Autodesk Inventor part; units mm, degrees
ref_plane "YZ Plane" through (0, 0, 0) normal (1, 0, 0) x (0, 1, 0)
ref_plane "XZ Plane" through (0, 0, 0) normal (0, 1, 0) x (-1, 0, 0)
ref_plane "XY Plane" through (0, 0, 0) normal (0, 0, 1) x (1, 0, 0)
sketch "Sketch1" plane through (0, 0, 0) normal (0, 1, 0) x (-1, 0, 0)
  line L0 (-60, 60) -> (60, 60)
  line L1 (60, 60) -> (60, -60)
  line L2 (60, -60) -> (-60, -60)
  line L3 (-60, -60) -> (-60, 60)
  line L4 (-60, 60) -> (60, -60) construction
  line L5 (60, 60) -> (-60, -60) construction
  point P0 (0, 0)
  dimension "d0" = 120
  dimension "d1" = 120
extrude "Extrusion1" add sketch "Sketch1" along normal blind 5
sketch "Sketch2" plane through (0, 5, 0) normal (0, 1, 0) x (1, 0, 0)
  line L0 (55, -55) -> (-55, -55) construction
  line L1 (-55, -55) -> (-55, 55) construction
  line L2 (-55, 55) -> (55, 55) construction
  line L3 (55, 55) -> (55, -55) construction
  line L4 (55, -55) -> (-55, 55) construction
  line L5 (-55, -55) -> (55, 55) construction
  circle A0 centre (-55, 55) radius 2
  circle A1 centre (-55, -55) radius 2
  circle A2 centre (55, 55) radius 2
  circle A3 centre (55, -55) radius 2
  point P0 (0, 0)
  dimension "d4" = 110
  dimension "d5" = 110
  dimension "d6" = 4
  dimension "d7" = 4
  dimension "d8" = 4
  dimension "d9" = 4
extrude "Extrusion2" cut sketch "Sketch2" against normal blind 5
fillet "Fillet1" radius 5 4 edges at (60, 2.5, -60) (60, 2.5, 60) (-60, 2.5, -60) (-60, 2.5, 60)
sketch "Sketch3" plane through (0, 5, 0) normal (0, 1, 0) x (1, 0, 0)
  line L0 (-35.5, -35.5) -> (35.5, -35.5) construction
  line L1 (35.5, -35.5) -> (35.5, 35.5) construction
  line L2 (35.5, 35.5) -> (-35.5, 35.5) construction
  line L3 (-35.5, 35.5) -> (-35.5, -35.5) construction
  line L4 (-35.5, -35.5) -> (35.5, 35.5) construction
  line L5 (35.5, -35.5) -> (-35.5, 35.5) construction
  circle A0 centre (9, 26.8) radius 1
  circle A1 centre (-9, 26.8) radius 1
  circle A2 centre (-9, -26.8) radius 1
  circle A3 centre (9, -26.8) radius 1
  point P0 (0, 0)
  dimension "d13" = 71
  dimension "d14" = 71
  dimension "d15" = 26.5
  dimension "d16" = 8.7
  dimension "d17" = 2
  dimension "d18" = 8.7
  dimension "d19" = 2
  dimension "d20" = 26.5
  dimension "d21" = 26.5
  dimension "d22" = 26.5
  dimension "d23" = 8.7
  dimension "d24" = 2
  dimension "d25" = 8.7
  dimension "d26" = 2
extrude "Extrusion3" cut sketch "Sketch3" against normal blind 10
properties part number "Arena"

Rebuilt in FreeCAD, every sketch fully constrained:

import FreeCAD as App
import Part
import Sketcher

V = App.Vector
Q = App.Units.Quantity


def edges_at(feature, points):
    """Names of the edges that pass closest to the given points."""
    edges = feature.Shape.Edges
    near = lambda p: min(range(len(edges)), key=lambda i: edges[i].distToShape(Part.Vertex(*p))[0])
    return sorted({f"Edge{near(p) + 1}" for p in points})


def add_polygon(sketch, points):
    """Adds a closed chain of lines whose ends are joined by coincident constraints."""
    first, n = sketch.GeometryCount, len(points)
    for a, b in zip(points, points[1:] + points[:1]):
        sketch.addGeometry(Part.LineSegment(App.Vector(*a, 0), App.Vector(*b, 0)), False)
    for i in range(n):
        sketch.addConstraint(Sketcher.Constraint("Coincident", first + i, 2, first + (i + 1) % n, 1))

doc = App.newDocument("Part")
body = doc.addObject("PartDesign::Body", "Body")

# Sketch on XZ plane
sketch1 = doc.addObject("Sketcher::SketchObject", "Sketch")
body.addObject(sketch1)
sketch1.AttachmentSupport = (doc.XZ_Plane, [""])
sketch1.MapMode = "FlatFace"
add_polygon(sketch1, [(-60, 60), (60, 60), (60, -60), (-60, -60)])  # lines 0-3
sketch1.addConstraint(Sketcher.Constraint("Horizontal", 0))
sketch1.addConstraint(Sketcher.Constraint("Vertical", 1))
sketch1.addConstraint(Sketcher.Constraint("Horizontal", 2))
sketch1.addConstraint(Sketcher.Constraint("Vertical", 3))
sketch1.addConstraint(Sketcher.Constraint("Symmetric", 0, 2, 2, 2, -1, 1))
sketch1.addConstraint(Sketcher.Constraint("Equal", 2, 1))
sketch1.addConstraint(Sketcher.Constraint("DistanceX", 0, 1, 0, 2, Q("120 mm")))
pad1 = doc.addObject("PartDesign::Pad", "Pad")
body.addObject(pad1)
pad1.Profile = sketch1
pad1.Length = 5
pad1.Reversed = True

# Sketch on XZ plane
sketch2 = doc.addObject("Sketcher::SketchObject", "Sketch001")
body.addObject(sketch2)
sketch2.AttachmentSupport = (doc.XZ_Plane, [""])
sketch2.MapMode = "FlatFace"
sketch2.AttachmentOffset = App.Placement(V(0, 0, -5), App.Rotation())
sketch2.addGeometry(Part.Circle(V(-55, -55, 0), V(0, 0, 1), 2), False)
sketch2.addGeometry(Part.Circle(V(-55, 55, 0), V(0, 0, 1), 2), False)
sketch2.addGeometry(Part.Circle(V(55, -55, 0), V(0, 0, 1), 2), False)
sketch2.addGeometry(Part.Circle(V(55, 55, 0), V(0, 0, 1), 2), False)
sketch2.addConstraint(Sketcher.Constraint("Equal", 0, 1))
sketch2.addConstraint(Sketcher.Constraint("Equal", 1, 2))
sketch2.addConstraint(Sketcher.Constraint("Equal", 2, 3))
sketch2.addConstraint(Sketcher.Constraint("Symmetric", 1, 3, 2, 3, -1, 1))
sketch2.addConstraint(Sketcher.Constraint("Symmetric", 0, 3, 3, 3, -1, 1))
sketch2.addConstraint(Sketcher.Constraint("Symmetric", 0, 3, 2, 3, -2))
sketch2.addConstraint(Sketcher.Constraint("Diameter", 0, Q("4 mm")))
sketch2.addConstraint(Sketcher.Constraint("DistanceY", 0, 3, 1, 3, Q("110 mm")))
sketch2.addConstraint(Sketcher.Constraint("DistanceX", 0, 3, 2, 3, Q("110 mm")))
pocket1 = doc.addObject("PartDesign::Pocket", "Pocket")
body.addObject(pocket1)
pocket1.Profile = sketch2
pocket1.Length = 5
pocket1.Reversed = True
doc.recompute()

fillet = doc.addObject("PartDesign::Fillet", "Fillet")
body.addObject(fillet)
fillet.Base = (pocket1, edges_at(pocket1, [
    (60, 2.5, -60),
    (60, 2.5, 60),
    (-60, 2.5, -60),
    (-60, 2.5, 60),
]))
fillet.Radius = 5

# Sketch on XZ plane
sketch3 = doc.addObject("Sketcher::SketchObject", "Sketch002")
body.addObject(sketch3)
sketch3.AttachmentSupport = (doc.XZ_Plane, [""])
sketch3.MapMode = "FlatFace"
sketch3.AttachmentOffset = App.Placement(V(0, 0, -5), App.Rotation())
sketch3.addGeometry(Part.Circle(V(9, -26.8, 0), V(0, 0, 1), 1), False)
sketch3.addGeometry(Part.Circle(V(-9, -26.8, 0), V(0, 0, 1), 1), False)
sketch3.addGeometry(Part.Circle(V(-9, 26.8, 0), V(0, 0, 1), 1), False)
sketch3.addGeometry(Part.Circle(V(9, 26.8, 0), V(0, 0, 1), 1), False)
sketch3.addConstraint(Sketcher.Constraint("Equal", 0, 1))
sketch3.addConstraint(Sketcher.Constraint("Equal", 1, 2))
sketch3.addConstraint(Sketcher.Constraint("Equal", 2, 3))
sketch3.addConstraint(Sketcher.Constraint("Symmetric", 0, 3, 2, 3, -1, 1))
sketch3.addConstraint(Sketcher.Constraint("Symmetric", 1, 3, 3, 3, -1, 1))
sketch3.addConstraint(Sketcher.Constraint("Symmetric", 0, 3, 1, 3, -2))
sketch3.addConstraint(Sketcher.Constraint("Diameter", 0, Q("2 mm")))
sketch3.addConstraint(Sketcher.Constraint("DistanceX", -1, 1, 0, 3, Q("9 mm")))
sketch3.addConstraint(Sketcher.Constraint("DistanceY", 0, 3, -1, 1, Q("26.8 mm")))
pocket2 = doc.addObject("PartDesign::Pocket", "Pocket001")
body.addObject(pocket2)
pocket2.Profile = sketch3
pocket2.Length = 10
pocket2.Reversed = True

doc.recompute()
